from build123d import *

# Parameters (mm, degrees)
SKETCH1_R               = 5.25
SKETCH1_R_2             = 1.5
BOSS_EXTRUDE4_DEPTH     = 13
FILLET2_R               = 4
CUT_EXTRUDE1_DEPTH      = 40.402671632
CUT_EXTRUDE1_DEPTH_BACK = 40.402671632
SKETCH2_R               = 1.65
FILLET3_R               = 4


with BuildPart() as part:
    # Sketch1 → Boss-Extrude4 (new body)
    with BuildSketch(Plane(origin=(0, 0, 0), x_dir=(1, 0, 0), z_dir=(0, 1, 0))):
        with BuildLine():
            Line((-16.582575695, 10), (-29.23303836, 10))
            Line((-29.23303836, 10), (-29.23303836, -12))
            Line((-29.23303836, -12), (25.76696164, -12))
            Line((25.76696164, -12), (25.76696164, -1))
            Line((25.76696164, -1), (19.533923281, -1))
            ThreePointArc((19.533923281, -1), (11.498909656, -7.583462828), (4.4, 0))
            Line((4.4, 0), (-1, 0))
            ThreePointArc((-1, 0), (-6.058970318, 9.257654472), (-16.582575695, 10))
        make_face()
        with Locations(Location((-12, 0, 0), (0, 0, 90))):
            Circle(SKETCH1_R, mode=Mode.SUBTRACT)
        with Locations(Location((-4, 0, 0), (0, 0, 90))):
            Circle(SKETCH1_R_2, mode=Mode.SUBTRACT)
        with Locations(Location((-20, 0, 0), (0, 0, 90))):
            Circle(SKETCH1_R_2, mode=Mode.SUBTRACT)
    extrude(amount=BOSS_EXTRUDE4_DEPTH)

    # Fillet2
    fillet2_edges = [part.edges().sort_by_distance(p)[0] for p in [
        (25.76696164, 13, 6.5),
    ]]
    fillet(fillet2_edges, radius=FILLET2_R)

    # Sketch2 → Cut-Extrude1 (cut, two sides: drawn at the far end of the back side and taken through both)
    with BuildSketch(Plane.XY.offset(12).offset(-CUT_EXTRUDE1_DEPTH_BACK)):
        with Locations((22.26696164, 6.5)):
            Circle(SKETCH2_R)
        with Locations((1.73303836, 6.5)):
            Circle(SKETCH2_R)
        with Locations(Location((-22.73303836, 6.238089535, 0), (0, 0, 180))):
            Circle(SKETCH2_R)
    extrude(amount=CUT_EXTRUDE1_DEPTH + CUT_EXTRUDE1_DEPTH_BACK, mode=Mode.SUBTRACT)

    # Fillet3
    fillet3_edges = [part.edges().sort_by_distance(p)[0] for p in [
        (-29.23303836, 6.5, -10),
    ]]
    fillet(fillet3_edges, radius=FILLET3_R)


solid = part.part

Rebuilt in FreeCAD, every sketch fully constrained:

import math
import FreeCAD as App
import Part
import Sketcher


def edges_at(feature, points):
    """Names of the edges that pass closest to the given points."""
    edges = feature.Shape.Edges
    near = lambda p: min(range(len(edges)), key=lambda i: edges[i].distToShape(Part.Vertex(*p))[0])
    return sorted({f"Edge{near(p) + 1}" for p in points})

doc = App.newDocument("Part")
body = doc.addObject("PartDesign::Body", "Body")

# Sketch on XZ plane
sketch1 = doc.addObject("Sketcher::SketchObject", "Sketch")
body.addObject(sketch1)
sketch1.AttachmentSupport = (doc.XZ_Plane, [""])
sketch1.MapMode = "FlatFace"
sketch1.addGeometry(Part.LineSegment(App.Vector(-16.6, -10, 0), App.Vector(-29.2, -10, 0)), False)
sketch1.addGeometry(Part.LineSegment(App.Vector(-29.2, -10, 0), App.Vector(-29.2, 12, 0)), False)
sketch1.addGeometry(Part.LineSegment(App.Vector(-29.2, 12, 0), App.Vector(25.8, 12, 0)), False)
sketch1.addGeometry(Part.LineSegment(App.Vector(25.8, 12, 0), App.Vector(25.8, 1, 0)), False)
sketch1.addGeometry(Part.LineSegment(App.Vector(25.8, 1, 0), App.Vector(19.5, 1, 0)), False)
sketch1.addGeometry(Part.ArcOfCircle(Part.Circle(App.Vector(12, 0, 0), App.Vector(0, 0, 1), 7.6), math.radians(8), math.radians(180)), False)
sketch1.addGeometry(Part.LineSegment(App.Vector(4.4, 0, 0), App.Vector(-1, 0, 0)), False)
sketch1.addGeometry(Part.ArcOfCircle(Part.Circle(App.Vector(-12, 0, 0), App.Vector(0, 0, 1), 11), math.radians(-115), math.radians(0)), False)
sketch1.addGeometry(Part.Circle(App.Vector(-20, 0, 0), App.Vector(0, 0, 1), 1.5), False)
sketch1.addGeometry(Part.Circle(App.Vector(-12, 0, 0), App.Vector(0, 0, 1), 5.2), False)
sketch1.addGeometry(Part.Circle(App.Vector(-4, 0, 0), App.Vector(0, 0, 1), 1.5), False)
sketch1.addConstraint(Sketcher.Constraint("Coincident", 0, 2, 1, 1))
sketch1.addConstraint(Sketcher.Constraint("Coincident", 1, 2, 2, 1))
sketch1.addConstraint(Sketcher.Constraint("Coincident", 2, 2, 3, 1))
sketch1.addConstraint(Sketcher.Constraint("Coincident", 3, 2, 4, 1))
sketch1.addConstraint(Sketcher.Constraint("Coincident", 4, 2, 5, 1))
sketch1.addConstraint(Sketcher.Constraint("Coincident", 5, 2, 6, 1))
sketch1.addConstraint(Sketcher.Constraint("Coincident", 6, 2, 7, 2))
sketch1.addConstraint(Sketcher.Constraint("Coincident", 7, 1, 0, 1))
sketch1.addConstraint(Sketcher.Constraint("Horizontal", 0))
sketch1.addConstraint(Sketcher.Constraint("Vertical", 1))
sketch1.addConstraint(Sketcher.Constraint("Horizontal", 2))
sketch1.addConstraint(Sketcher.Constraint("Vertical", 3))
sketch1.addConstraint(Sketcher.Constraint("Horizontal", 4))
sketch1.addConstraint(Sketcher.Constraint("Horizontal", 6))
sketch1.addConstraint(Sketcher.Constraint("Coincident", 9, 3, 7, 3))
sketch1.addConstraint(Sketcher.Constraint("Equal", 8, 10))
sketch1.addConstraint(Sketcher.Constraint("Symmetric", 5, 3, 7, 3, -1, 1))
sketch1.addConstraint(Sketcher.Constraint("PointOnObject", 5, 3, -1))
sketch1.addConstraint(Sketcher.Constraint("PointOnObject", 8, 3, -1))
sketch1.addConstraint(Sketcher.Constraint("PointOnObject", 10, 3, -1))
sketch1.addConstraint(Sketcher.Constraint("PointOnObject", 5, 2, -1))
sketch1.addConstraint(Sketcher.Constraint("Diameter", 8, 3.0))
sketch1.addConstraint(Sketcher.Constraint("Radius", 7, 11.0))
sketch1.addConstraint(Sketcher.Constraint("Diameter", 9, 10.5))
sketch1.addConstraint(Sketcher.Constraint("Radius", 5, 7.6))
sketch1.addConstraint(Sketcher.Constraint("DistanceX", 2, 1, 2, 2, 55.0))
sketch1.addConstraint(Sketcher.Constraint("DistanceY", 1, 1, 1, 2, 22.0))
sketch1.addConstraint(Sketcher.Constraint("DistanceY", 3, 2, 3, 1, 11.0))
sketch1.addConstraint(Sketcher.Constraint("DistanceX", 6, 2, 6, 1, 5.4))
sketch1.addConstraint(Sketcher.Constraint("DistanceX", 8, 3, -1, 1, 20.0))
sketch1.addConstraint(Sketcher.Constraint("DistanceX", 10, 3, -1, 1, 4.0))
sketch1.addConstraint(Sketcher.Constraint("DistanceY", 0, 2, -1, 1, 10.0))
sketch1.addConstraint(Sketcher.Constraint("DistanceX", 4, 2, 4, 1, 6.233038))
pad1 = doc.addObject("PartDesign::Pad", "Pad")
body.addObject(pad1)
pad1.Profile = sketch1
pad1.Length = 13
pad1.Reversed = True
doc.recompute()

fillet = doc.addObject("PartDesign::Fillet", "Fillet")
body.addObject(fillet)
fillet.Base = (pad1, edges_at(pad1, [(25.767, 13, 6.5)]))
fillet.Radius = 4

# Sketch on XY plane
sketch2 = doc.addObject("Sketcher::SketchObject", "Sketch001")
body.addObject(sketch2)
sketch2.AttachmentSupport = (doc.XY_Plane, [""])
sketch2.MapMode = "FlatFace"
sketch2.AttachmentOffset = App.Placement(App.Vector(0, 0, 12), App.Rotation())
sketch2.addGeometry(Part.Circle(App.Vector(22.3, 6.5, 0), App.Vector(0, 0, 1), 1.6), False)
sketch2.addGeometry(Part.Circle(App.Vector(1.7, 6.5, 0), App.Vector(0, 0, 1), 1.6), False)
sketch2.addGeometry(Part.Circle(App.Vector(-22.7, 6.2, 0), App.Vector(0, 0, 1), 1.6), False)
sketch2.addConstraint(Sketcher.Constraint("Equal", 0, 1))
sketch2.addConstraint(Sketcher.Constraint("Equal", 1, 2))
sketch2.addConstraint(Sketcher.Constraint("Horizontal", 0, 3, 1, 3))
sketch2.addConstraint(Sketcher.Constraint("Diameter", 0, 3.3))
sketch2.addConstraint(Sketcher.Constraint("DistanceX", 2, 3, 0, 3, 45.0))
sketch2.addConstraint(Sketcher.Constraint("DistanceY", -1, 1, 0, 3, 6.5))
sketch2.addConstraint(Sketcher.Constraint("DistanceX", -1, 1, 0, 3, 22.266962))
sketch2.addConstraint(Sketcher.Constraint("DistanceX", -1, 1, 1, 3, 1.733038))
sketch2.addConstraint(Sketcher.Constraint("DistanceY", -1, 1, 2, 3, 6.23809))
pocket1 = doc.addObject("PartDesign::Pocket", "Pocket")
body.addObject(pocket1)
pocket1.Profile = sketch2
pocket1.Type = "ThroughAll"
pocket1.Midplane = True
doc.recompute()

fillet2 = doc.addObject("PartDesign::Fillet", "Fillet001")
body.addObject(fillet2)
fillet2.Base = (pocket1, edges_at(pocket1, [(-29.233, 6.5, -10)]))
fillet2.Radius = 4

doc.recompute()
